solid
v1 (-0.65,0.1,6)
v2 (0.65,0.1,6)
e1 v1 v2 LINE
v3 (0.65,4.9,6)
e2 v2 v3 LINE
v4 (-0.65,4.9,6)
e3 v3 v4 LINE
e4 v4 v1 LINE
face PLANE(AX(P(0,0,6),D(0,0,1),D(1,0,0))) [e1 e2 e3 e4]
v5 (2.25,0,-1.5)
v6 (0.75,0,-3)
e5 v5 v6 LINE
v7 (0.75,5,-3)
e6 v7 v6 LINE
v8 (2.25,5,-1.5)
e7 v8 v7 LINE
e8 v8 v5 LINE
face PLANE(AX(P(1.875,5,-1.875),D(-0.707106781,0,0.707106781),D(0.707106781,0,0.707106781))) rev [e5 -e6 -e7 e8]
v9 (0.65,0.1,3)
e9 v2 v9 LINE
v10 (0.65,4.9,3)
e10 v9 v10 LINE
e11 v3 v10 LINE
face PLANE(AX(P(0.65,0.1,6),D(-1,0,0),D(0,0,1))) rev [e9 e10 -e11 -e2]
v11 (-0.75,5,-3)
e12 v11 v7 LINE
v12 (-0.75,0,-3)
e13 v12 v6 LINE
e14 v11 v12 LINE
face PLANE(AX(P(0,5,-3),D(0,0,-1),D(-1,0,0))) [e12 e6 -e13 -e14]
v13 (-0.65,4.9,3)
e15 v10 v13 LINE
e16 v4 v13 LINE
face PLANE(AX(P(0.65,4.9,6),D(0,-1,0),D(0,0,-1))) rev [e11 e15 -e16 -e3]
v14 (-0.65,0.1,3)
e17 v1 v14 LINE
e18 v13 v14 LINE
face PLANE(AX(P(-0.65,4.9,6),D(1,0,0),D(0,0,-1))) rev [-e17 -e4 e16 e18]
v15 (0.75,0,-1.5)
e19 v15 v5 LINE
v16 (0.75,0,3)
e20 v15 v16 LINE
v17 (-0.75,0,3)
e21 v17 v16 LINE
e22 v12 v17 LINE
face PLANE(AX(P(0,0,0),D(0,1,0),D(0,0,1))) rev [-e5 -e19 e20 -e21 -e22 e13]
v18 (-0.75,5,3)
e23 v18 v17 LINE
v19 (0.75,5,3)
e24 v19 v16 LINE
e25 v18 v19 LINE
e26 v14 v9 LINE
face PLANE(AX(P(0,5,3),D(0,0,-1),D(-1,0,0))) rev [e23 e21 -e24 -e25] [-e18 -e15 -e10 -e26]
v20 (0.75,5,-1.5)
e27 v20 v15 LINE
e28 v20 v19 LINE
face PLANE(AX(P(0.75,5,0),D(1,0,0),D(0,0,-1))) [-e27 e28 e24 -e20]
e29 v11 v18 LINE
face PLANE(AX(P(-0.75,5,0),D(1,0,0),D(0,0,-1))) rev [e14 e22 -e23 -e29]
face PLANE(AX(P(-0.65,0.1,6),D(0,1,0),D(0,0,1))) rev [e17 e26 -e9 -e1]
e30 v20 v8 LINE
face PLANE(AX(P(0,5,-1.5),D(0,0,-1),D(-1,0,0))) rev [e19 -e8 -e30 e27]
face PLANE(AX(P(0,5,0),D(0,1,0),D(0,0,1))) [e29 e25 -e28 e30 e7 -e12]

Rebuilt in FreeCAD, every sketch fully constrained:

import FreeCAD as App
import Part
import Sketcher
from FreeCAD import Vector
Q = App.Units.Quantity


def add_polygon(sketch, points):
    """Adds a closed chain of lines whose ends are joined by coincident constraints."""
    first, n = sketch.GeometryCount, len(points)
    for a, b in zip(points, points[1:] + points[:1]):
        sketch.addGeometry(Part.LineSegment(App.Vector(*a, 0), App.Vector(*b, 0)), False)
    for i in range(n):
        sketch.addConstraint(Sketcher.Constraint("Coincident", first + i, 2, first + (i + 1) % n, 1))

doc = App.newDocument("Part")
body = doc.addObject("PartDesign::Body", "Body")

# Sketch on XZ plane
sketch1 = doc.addObject("Sketcher::SketchObject", "Sketch")
body.addObject(sketch1)
sketch1.AttachmentSupport = (doc.XZ_Plane, [""])
sketch1.MapMode = "FlatFace"
add_polygon(sketch1, [(2.2, -1.5), (0.8, -3), (-0.8, -3), (-0.8, 3), (0.8, 3), (0.8, -1.5)])  # lines 0-5
sketch1.addConstraint([
    Sketcher.Constraint("Horizontal", 1),
    Sketcher.Constraint("Vertical", 2),
    Sketcher.Constraint("Horizontal", 3),
    Sketcher.Constraint("Vertical", 4),
    Sketcher.Constraint("Horizontal", 5),
    Sketcher.Constraint("Symmetric", 0, 2, 2, 2, -1, 1),
    Sketcher.Constraint("Vertical", 0, 2, 3, 2),
    Sketcher.Constraint("Equal", 3, 5),
    Sketcher.Constraint("DistanceY", 2, 1, 2, 2, 6.0),
    Sketcher.Constraint("Angle", 0, Q("-135 deg")),
    Sketcher.Constraint("DistanceX", 1, 2, 1, 1, 1.5),
])
pad1 = doc.addObject("PartDesign::Pad", "Pad")
body.addObject(pad1)
pad1.Profile = sketch1
pad1.Length = 5
pad1.Reversed = True

# Sketch on XY plane
sketch2 = doc.addObject("Sketcher::SketchObject", "Sketch001")
body.addObject(sketch2)
sketch2.AttachmentSupport = (doc.XY_Plane, [""])
sketch2.MapMode = "FlatFace"
sketch2.AttachmentOffset = App.Placement(Vector(0, 0, 3), App.Rotation())
add_polygon(sketch2, [(-0.7, 4.9), (-0.7, 0.1), (0.7, 0.1), (0.7, 4.9)])  # lines 0-3
sketch2.addConstraint([
    Sketcher.Constraint("Vertical", 0),
    Sketcher.Constraint("Horizontal", 1),
    Sketcher.Constraint("Vertical", 2),
    Sketcher.Constraint("Horizontal", 3),
    Sketcher.Constraint("DistanceX", 1, 1, 1, 2, 1.3),
    Sketcher.Constraint("DistanceY", 0, 2, 0, 1, 4.8),
    Sketcher.Constraint("DistanceY", -1, 1, 0, 2, 0.1),
    Sketcher.Constraint("DistanceX", 0, 2, -1, 1, 0.65),
])
pad2 = doc.addObject("PartDesign::Pad", "Pad001")
body.addObject(pad2)
pad2.Profile = sketch2
pad2.Length = 3

doc.recompute()
